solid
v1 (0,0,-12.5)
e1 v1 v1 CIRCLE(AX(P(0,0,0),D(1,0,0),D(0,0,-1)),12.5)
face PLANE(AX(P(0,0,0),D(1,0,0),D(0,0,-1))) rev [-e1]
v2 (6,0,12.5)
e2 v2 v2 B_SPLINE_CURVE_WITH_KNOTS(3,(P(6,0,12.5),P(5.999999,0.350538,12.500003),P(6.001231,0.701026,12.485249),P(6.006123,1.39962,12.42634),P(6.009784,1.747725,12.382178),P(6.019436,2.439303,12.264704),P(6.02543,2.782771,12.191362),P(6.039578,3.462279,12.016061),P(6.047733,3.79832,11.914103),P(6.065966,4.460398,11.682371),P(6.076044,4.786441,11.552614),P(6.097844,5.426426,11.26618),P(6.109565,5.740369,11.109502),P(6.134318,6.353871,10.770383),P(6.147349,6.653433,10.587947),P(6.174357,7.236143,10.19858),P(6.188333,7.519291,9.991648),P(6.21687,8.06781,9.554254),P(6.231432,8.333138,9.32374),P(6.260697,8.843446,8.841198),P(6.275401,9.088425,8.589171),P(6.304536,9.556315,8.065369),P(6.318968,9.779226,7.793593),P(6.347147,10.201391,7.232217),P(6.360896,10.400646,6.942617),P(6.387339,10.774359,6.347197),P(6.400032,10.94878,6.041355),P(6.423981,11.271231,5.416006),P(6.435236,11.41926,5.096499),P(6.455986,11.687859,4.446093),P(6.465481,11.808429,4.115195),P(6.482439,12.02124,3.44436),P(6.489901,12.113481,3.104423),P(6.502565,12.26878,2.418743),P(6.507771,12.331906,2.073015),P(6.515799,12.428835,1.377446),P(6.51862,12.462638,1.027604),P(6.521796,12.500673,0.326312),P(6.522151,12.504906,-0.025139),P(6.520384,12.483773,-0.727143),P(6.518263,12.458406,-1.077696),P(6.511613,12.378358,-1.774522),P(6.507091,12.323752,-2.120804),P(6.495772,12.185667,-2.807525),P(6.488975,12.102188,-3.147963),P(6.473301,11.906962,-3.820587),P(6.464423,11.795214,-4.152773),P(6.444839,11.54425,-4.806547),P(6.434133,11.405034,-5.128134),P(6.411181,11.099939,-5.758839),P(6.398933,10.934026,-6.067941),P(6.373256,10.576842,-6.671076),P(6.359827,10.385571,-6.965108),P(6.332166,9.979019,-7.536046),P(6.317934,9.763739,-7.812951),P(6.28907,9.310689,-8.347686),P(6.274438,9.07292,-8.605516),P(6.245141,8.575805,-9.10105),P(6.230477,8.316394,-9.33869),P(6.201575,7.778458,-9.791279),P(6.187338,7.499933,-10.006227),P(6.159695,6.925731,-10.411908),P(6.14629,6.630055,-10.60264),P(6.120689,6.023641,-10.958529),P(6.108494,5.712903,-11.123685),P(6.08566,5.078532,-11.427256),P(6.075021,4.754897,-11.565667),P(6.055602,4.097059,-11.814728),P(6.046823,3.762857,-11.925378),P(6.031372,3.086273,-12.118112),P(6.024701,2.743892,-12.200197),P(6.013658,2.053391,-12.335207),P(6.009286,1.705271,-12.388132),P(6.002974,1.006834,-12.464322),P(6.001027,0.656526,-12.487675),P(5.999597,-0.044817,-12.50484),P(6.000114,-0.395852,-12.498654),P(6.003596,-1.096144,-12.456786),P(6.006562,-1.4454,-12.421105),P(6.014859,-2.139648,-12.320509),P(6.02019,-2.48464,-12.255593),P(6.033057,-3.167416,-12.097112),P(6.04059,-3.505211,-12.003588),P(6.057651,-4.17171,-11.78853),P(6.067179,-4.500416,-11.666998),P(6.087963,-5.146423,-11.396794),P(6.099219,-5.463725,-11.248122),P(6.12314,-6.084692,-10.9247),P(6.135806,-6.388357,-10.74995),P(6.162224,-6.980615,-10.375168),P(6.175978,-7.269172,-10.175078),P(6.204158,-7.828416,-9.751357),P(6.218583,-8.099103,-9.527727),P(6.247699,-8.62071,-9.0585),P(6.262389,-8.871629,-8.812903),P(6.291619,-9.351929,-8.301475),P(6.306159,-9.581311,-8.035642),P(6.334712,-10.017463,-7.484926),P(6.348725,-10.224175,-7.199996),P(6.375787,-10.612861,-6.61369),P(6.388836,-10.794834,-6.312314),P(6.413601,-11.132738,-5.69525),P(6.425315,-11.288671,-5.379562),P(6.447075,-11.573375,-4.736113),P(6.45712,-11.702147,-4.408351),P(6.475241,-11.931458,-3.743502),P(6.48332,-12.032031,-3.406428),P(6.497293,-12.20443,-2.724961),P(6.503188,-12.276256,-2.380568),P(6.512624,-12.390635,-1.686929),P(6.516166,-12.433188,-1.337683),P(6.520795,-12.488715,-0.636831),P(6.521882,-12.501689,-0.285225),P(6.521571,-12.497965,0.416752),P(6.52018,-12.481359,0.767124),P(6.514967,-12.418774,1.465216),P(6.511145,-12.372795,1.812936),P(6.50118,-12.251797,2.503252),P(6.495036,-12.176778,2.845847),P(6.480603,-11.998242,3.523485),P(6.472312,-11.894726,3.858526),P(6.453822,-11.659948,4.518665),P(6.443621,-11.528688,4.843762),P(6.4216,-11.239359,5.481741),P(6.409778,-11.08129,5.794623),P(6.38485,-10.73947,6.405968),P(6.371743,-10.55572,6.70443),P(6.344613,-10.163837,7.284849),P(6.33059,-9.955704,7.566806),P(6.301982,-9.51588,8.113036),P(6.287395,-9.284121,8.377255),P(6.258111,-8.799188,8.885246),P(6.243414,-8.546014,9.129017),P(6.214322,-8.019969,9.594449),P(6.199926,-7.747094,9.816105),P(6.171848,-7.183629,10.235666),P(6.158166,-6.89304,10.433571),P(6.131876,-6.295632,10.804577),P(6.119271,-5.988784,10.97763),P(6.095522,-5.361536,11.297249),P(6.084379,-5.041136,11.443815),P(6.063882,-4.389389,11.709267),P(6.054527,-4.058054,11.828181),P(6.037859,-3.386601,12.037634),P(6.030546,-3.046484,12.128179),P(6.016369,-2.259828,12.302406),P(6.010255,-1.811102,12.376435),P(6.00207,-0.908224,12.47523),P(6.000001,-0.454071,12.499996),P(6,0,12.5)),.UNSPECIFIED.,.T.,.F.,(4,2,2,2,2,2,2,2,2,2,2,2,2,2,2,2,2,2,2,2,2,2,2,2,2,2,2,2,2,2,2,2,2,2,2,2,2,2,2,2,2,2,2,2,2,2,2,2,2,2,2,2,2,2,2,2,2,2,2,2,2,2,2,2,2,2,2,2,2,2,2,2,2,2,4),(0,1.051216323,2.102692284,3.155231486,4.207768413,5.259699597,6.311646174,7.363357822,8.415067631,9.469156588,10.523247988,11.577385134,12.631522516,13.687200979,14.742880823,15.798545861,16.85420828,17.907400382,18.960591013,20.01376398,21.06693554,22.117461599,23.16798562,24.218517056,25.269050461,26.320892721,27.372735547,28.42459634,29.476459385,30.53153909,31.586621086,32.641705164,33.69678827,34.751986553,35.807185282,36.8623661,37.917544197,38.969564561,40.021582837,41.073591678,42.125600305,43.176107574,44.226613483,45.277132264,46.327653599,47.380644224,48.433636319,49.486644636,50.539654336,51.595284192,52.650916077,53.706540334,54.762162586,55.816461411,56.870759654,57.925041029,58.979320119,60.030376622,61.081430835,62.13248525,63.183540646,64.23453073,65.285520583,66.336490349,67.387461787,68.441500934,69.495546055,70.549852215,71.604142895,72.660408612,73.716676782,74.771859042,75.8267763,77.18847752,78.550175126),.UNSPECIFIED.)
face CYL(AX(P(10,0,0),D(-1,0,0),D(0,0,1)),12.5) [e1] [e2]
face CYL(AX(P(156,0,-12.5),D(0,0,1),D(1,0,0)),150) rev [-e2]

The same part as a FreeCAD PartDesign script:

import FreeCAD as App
import Part
import Sketcher

V = App.Vector
Q = App.Units.Quantity

doc = App.newDocument("Part")
body = doc.addObject("PartDesign::Body", "Body")

# Sketch on YZ plane
sketch1 = body.newObject("Sketcher::SketchObject", "Sketch")
sketch1.AttachmentSupport = (doc.getObject("YZ_Plane"), [""])
sketch1.MapMode = "FlatFace"
sketch1.addGeometry(Part.Circle(V(0, 0, 0), V(0, 0, 1), 12), False)
sketch1.addConstraint([
    Sketcher.Constraint("Coincident", 0, 3, -1, 1),
    Sketcher.Constraint("Diameter", 0, Q("25 mm")),
])
pad1 = body.newObject("PartDesign::Pad", "Pad")
pad1.Profile = sketch1
pad1.Length = 10

# Sketch on XY plane
sketch2 = body.newObject("Sketcher::SketchObject", "Sketch001")
sketch2.AttachmentSupport = (doc.getObject("XY_Plane"), [""])
sketch2.MapMode = "FlatFace"
sketch2.addGeometry(Part.Circle(V(156, 0, 0), V(0, 0, 1), 150), False)
sketch2.addConstraint([
    Sketcher.Constraint("PointOnObject", 0, 3, -1),
    Sketcher.Constraint("Diameter", 0, Q("300 mm")),
    Sketcher.Constraint("DistanceX", -1, 1, 0, 3, Q("156 mm")),
])
pocket1 = body.newObject("PartDesign::Pocket", "Pocket")
pocket1.Profile = sketch2
pocket1.Type = "ThroughAll"
pocket1.Midplane = True

doc.recompute()
